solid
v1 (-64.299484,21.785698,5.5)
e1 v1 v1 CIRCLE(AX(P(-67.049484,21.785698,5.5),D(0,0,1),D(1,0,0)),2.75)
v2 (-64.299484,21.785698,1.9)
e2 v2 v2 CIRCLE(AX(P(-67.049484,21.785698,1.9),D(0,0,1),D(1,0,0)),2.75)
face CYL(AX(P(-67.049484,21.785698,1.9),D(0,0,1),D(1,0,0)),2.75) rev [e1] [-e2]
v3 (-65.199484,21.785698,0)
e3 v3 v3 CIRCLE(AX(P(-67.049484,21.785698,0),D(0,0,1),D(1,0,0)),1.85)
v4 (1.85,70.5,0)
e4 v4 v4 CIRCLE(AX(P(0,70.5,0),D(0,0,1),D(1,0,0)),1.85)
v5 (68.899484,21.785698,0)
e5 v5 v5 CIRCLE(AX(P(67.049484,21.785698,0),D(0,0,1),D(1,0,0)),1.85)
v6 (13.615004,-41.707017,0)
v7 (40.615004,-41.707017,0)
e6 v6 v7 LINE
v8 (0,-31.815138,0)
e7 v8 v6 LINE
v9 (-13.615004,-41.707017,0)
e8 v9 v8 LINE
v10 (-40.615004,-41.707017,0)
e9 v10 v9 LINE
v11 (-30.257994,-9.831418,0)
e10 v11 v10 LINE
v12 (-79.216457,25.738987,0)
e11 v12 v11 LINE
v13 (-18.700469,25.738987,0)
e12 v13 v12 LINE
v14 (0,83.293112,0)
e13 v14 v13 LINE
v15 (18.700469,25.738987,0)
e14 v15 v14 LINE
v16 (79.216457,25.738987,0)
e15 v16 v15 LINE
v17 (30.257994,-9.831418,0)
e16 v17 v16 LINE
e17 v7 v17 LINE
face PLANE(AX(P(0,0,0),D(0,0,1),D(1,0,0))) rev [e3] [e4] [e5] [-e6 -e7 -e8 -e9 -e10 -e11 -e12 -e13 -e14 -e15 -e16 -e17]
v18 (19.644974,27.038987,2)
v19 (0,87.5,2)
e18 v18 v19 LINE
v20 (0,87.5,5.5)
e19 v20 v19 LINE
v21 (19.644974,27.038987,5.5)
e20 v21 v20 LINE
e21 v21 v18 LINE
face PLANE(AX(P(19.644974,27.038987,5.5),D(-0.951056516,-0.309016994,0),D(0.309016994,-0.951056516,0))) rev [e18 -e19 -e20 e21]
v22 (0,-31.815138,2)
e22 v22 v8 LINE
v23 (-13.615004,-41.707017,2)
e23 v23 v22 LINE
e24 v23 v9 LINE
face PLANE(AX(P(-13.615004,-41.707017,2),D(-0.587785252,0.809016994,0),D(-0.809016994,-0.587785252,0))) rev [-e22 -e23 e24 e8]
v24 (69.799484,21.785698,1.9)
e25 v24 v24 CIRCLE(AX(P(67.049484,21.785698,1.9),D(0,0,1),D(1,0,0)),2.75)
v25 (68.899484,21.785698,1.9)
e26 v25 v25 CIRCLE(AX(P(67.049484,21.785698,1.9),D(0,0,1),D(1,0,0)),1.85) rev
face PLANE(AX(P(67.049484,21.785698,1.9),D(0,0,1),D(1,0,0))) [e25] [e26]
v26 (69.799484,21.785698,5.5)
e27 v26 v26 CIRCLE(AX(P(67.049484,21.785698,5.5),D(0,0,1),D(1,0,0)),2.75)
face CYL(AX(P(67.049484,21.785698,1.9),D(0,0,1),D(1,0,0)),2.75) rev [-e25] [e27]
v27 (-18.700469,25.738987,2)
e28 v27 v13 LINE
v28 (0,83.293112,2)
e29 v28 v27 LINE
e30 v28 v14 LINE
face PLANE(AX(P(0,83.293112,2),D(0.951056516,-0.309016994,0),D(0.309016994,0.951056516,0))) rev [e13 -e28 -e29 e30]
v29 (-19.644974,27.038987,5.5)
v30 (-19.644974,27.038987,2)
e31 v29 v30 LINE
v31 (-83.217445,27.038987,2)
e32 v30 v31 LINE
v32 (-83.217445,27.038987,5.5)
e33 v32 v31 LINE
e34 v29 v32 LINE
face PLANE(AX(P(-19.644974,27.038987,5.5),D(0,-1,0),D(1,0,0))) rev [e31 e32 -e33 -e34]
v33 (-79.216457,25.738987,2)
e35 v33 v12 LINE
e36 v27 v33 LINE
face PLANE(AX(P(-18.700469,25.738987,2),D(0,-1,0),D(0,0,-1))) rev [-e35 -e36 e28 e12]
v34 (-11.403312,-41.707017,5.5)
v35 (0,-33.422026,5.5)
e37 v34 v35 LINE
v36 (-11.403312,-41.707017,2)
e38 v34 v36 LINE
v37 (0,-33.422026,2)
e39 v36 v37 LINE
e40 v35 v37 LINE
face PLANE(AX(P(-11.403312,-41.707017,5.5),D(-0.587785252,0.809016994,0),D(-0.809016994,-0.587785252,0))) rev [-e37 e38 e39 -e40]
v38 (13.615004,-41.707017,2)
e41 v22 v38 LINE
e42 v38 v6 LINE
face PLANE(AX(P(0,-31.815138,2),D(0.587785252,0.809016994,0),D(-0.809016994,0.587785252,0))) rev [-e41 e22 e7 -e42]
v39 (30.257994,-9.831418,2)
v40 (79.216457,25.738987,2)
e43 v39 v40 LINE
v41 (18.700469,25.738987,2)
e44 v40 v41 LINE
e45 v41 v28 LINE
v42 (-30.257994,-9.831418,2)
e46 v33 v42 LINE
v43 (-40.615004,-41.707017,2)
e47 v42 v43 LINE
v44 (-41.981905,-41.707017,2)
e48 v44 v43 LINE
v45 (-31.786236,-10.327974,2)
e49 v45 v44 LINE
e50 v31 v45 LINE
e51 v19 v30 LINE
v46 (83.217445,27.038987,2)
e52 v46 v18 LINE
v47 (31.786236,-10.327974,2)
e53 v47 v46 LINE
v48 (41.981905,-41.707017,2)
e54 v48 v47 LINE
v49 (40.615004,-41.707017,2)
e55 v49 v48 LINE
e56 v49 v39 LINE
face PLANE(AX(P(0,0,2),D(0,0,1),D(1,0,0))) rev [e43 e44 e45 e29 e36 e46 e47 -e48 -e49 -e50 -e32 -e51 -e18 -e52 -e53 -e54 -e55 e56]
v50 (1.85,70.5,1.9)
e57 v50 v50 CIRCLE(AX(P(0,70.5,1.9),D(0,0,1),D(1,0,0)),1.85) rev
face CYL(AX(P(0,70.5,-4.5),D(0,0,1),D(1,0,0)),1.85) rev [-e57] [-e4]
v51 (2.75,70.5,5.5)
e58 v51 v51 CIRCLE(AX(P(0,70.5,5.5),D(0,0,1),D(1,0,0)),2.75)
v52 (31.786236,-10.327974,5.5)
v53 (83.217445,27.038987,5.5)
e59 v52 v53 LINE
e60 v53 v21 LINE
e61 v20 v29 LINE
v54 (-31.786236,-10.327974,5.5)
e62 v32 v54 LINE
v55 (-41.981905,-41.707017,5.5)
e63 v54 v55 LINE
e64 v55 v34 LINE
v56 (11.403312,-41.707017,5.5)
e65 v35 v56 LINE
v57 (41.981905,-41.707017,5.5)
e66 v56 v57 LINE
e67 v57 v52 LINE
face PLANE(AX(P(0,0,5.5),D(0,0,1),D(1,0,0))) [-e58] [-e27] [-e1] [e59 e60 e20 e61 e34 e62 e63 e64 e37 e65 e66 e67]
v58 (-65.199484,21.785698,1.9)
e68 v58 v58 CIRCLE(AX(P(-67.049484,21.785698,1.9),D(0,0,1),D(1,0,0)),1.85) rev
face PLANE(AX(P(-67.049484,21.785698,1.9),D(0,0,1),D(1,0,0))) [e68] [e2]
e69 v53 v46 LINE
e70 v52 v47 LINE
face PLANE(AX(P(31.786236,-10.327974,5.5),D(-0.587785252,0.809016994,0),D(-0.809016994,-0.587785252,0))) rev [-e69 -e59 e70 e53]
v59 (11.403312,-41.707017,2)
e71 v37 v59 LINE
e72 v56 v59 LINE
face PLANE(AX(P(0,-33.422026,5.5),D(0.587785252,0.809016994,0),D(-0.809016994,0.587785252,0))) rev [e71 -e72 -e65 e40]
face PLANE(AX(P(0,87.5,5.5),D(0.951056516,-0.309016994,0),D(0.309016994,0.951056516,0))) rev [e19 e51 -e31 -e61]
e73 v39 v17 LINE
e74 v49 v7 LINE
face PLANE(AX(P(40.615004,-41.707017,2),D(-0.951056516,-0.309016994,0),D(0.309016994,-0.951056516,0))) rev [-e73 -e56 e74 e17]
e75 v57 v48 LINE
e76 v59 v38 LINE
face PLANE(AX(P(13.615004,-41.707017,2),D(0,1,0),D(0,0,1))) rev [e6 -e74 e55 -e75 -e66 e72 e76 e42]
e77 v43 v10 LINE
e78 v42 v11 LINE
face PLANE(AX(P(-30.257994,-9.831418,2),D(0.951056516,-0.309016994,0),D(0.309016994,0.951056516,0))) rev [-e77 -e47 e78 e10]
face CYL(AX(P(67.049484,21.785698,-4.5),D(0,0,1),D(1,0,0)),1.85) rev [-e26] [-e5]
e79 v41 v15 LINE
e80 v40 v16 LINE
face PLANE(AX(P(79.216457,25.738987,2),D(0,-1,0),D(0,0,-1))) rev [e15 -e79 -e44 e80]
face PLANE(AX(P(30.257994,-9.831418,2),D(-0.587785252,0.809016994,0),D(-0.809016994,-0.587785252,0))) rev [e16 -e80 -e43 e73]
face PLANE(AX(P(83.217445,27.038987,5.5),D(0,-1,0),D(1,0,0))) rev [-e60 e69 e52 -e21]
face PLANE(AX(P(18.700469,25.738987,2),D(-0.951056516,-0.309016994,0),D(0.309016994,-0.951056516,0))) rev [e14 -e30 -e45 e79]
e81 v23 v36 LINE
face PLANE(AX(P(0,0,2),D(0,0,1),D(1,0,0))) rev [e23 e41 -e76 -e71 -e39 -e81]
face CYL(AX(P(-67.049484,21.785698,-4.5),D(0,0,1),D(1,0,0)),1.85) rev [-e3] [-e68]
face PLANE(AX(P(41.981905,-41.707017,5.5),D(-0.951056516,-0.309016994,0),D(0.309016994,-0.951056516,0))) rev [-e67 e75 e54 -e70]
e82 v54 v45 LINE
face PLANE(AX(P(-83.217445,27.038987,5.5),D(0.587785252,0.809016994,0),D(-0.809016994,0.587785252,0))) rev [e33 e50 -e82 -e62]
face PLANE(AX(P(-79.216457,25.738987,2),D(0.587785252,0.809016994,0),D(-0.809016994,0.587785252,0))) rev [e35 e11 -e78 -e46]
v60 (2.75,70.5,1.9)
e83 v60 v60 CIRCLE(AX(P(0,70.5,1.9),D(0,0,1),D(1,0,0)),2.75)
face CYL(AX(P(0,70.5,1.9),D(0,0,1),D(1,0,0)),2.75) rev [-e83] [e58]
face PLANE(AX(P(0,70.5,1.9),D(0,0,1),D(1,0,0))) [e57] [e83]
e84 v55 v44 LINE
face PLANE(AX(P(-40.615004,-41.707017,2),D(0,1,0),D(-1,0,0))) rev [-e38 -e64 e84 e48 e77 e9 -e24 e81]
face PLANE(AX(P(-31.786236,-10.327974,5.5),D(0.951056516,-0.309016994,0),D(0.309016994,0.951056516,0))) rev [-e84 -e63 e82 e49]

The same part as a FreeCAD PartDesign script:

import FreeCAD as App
import Part
import Sketcher

V = App.Vector
Q = App.Units.Quantity

doc = App.newDocument("Part")
params = doc.addObject("Spreadsheet::Sheet", "Params")
for row, (alias, value) in enumerate([
    ("sketch1_width", "27 mm"),
    ("pad1_length", "2 mm"),
    ("pad2_length", "3.5 mm"),
    ("sketch3_diameter", "3.7 mm"),
    ("pocket1_length", "10 mm"),
    ("sketch4_diameter", "5.5 mm"),
    ("pocket2_length", "3.6 mm"),
], start=1):
    params.set(f"A{row}", alias)
    params.set(f"B{row}", "=" + value)
    params.setAlias(f"B{row}", alias)

body = doc.addObject("PartDesign::Body", "Body")

# Sketch on XY plane
sketch1 = body.newObject("Sketcher::SketchObject", "Sketch")
sketch1.AttachmentSupport = (doc.getObject("XY_Plane"), [""])
sketch1.MapMode = "FlatFace"
sketch1.addGeometry([
    Part.LineSegment(V(79, 26, 0), V(19, 26, 0)),  # 0
    Part.LineSegment(V(19, 26, 0), V(0, 83, 0)),  # 1
    Part.LineSegment(V(0, 83, 0), V(-19, 26, 0)),  # 2
    Part.LineSegment(V(-19, 26, 0), V(-79, 26, 0)),  # 3
    Part.LineSegment(V(-79, 26, 0), V(-30, -10, 0)),  # 4
    Part.LineSegment(V(-30, -10, 0), V(-41, -42, 0)),  # 5
    Part.LineSegment(V(-41, -42, 0), V(-14, -42, 0)),  # 6
    Part.LineSegment(V(-14, -42, 0), V(0, -32, 0)),  # 7
    Part.LineSegment(V(0, -32, 0), V(14, -42, 0)),  # 8
    Part.LineSegment(V(14, -42, 0), V(41, -42, 0)),  # 9
    Part.LineSegment(V(41, -42, 0), V(30, -10, 0)),  # 10
    Part.LineSegment(V(30, -10, 0), V(79, 26, 0)),  # 11
], False)
sketch1.addConstraint([
    Sketcher.Constraint("Coincident", 0, 2, 1, 1),
    Sketcher.Constraint("Coincident", 1, 2, 2, 1),
    Sketcher.Constraint("Coincident", 2, 2, 3, 1),
    Sketcher.Constraint("Coincident", 3, 2, 4, 1),
    Sketcher.Constraint("Coincident", 4, 2, 5, 1),
    Sketcher.Constraint("Coincident", 5, 2, 6, 1),
    Sketcher.Constraint("Coincident", 6, 2, 7, 1),
    Sketcher.Constraint("Coincident", 7, 2, 8, 1),
    Sketcher.Constraint("Coincident", 8, 2, 9, 1),
    Sketcher.Constraint("Coincident", 9, 2, 10, 1),
    Sketcher.Constraint("Coincident", 10, 2, 11, 1),
    Sketcher.Constraint("Coincident", 11, 2, 0, 1),
    Sketcher.Constraint("Horizontal", 0),
    Sketcher.Constraint("Horizontal", 3),
    Sketcher.Constraint("Horizontal", 6),
    Sketcher.Constraint("Horizontal", 9),
    Sketcher.Constraint("Symmetric", 0, 2, 2, 2, -2),
    Sketcher.Constraint("Symmetric", 6, 2, 8, 2, -2),
    Sketcher.Constraint("Symmetric", 4, 2, 10, 2, -2),
    Sketcher.Constraint("PointOnObject", 1, 2, -2),
    Sketcher.Constraint("PointOnObject", 7, 2, -2),
    Sketcher.Constraint("Parallel", 2, 5),
    Sketcher.Constraint("Parallel", 4, 8),
    Sketcher.Constraint("Parallel", 1, 10),
    Sketcher.Constraint("Parallel", 7, 11),
    Sketcher.Constraint("Equal", 2, 4),
    Sketcher.Constraint("DistanceX", 6, 1, 6, 2, Q("27 mm")),
    Sketcher.Constraint("Angle", 1, Q("108 deg")),
    Sketcher.Constraint("Angle", 4, Q("-36 deg")),
    Sketcher.Constraint("DistanceY", 5, 2, 4, 2, Q("31.875599 mm")),
    Sketcher.Constraint("Distance", 7, Q("16.82907 mm")),
    Sketcher.Constraint("DistanceX", 0, 2, 0, 1, Q("60.515988 mm")),
    Sketcher.Constraint("DistanceY", -1, 1, 1, 2, Q("83.293112 mm")),
])
sketch1.setExpression("Constraints[26]", "Params.sketch1_width")
pad1 = body.newObject("PartDesign::Pad", "Pad")
pad1.Profile = sketch1
pad1.setExpression("Length", "Params.pad1_length")

# Sketch on XY plane
sketch2 = body.newObject("Sketcher::SketchObject", "Sketch001")
sketch2.AttachmentSupport = (doc.getObject("XY_Plane"), [""])
sketch2.MapMode = "FlatFace"
sketch2.AttachmentOffset = App.Placement(V(0, 0, 2), App.Rotation())
sketch2.addGeometry([
    Part.LineSegment(V(-42, -42, 0), V(-11, -42, 0)),  # 0
    Part.LineSegment(V(-11, -42, 0), V(0, -33, 0)),  # 1
    Part.LineSegment(V(0, -33, 0), V(11, -42, 0)),  # 2
    Part.LineSegment(V(11, -42, 0), V(42, -42, 0)),  # 3
    Part.LineSegment(V(42, -42, 0), V(32, -10, 0)),  # 4
    Part.LineSegment(V(32, -10, 0), V(83, 27, 0)),  # 5
    Part.LineSegment(V(83, 27, 0), V(20, 27, 0)),  # 6
    Part.LineSegment(V(20, 27, 0), V(0, 88, 0)),  # 7
    Part.LineSegment(V(0, 88, 0), V(-20, 27, 0)),  # 8
    Part.LineSegment(V(-20, 27, 0), V(-83, 27, 0)),  # 9
    Part.LineSegment(V(-83, 27, 0), V(-32, -10, 0)),  # 10
    Part.LineSegment(V(-32, -10, 0), V(-42, -42, 0)),  # 11
], False)
sketch2.addConstraint([
    Sketcher.Constraint("Coincident", 0, 2, 1, 1),
    Sketcher.Constraint("Coincident", 1, 2, 2, 1),
    Sketcher.Constraint("Coincident", 2, 2, 3, 1),
    Sketcher.Constraint("Coincident", 3, 2, 4, 1),
    Sketcher.Constraint("Coincident", 4, 2, 5, 1),
    Sketcher.Constraint("Coincident", 5, 2, 6, 1),
    Sketcher.Constraint("Coincident", 6, 2, 7, 1),
    Sketcher.Constraint("Coincident", 7, 2, 8, 1),
    Sketcher.Constraint("Coincident", 8, 2, 9, 1),
    Sketcher.Constraint("Coincident", 9, 2, 10, 1),
    Sketcher.Constraint("Coincident", 10, 2, 11, 1),
    Sketcher.Constraint("Coincident", 11, 2, 0, 1),
    Sketcher.Constraint("Horizontal", 0),
    Sketcher.Constraint("Horizontal", 3),
    Sketcher.Constraint("Horizontal", 6),
    Sketcher.Constraint("Horizontal", 9),
    Sketcher.Constraint("Symmetric", 0, 2, 2, 2, -2),
    Sketcher.Constraint("Symmetric", 6, 2, 8, 2, -2),
    Sketcher.Constraint("Symmetric", 4, 2, 10, 2, -2),
    Sketcher.Constraint("PointOnObject", 1, 2, -2),
    Sketcher.Constraint("PointOnObject", 7, 2, -2),
    Sketcher.Constraint("Parallel", 1, 5),
    Sketcher.Constraint("Parallel", 4, 7),
    Sketcher.Constraint("Parallel", 2, 10),
    Sketcher.Constraint("Parallel", 8, 11),
    Sketcher.Constraint("Equal", 5, 7),
    Sketcher.Constraint("Angle", 1, Q("36 deg")),
    Sketcher.Constraint("Angle", 4, Q("108 deg")),
    Sketcher.Constraint("DistanceY", -1, 1, 7, 2, Q("87.5 mm")),
    Sketcher.Constraint("DistanceX", 6, 2, 6, 1, Q("63.572471 mm")),
    Sketcher.Constraint("Distance", 1, Q("14.095268 mm")),
    Sketcher.Constraint("Distance", 4, Q("32.993878 mm")),
    Sketcher.Constraint("Distance", 5, Q("63.572471 mm")),
])
pad2 = body.newObject("PartDesign::Pad", "Pad001")
pad2.Profile = sketch2
pad2.setExpression("Length", "Params.pad2_length")

# Sketch on XY plane
sketch3 = body.newObject("Sketcher::SketchObject", "Sketch002")
sketch3.AttachmentSupport = (doc.getObject("XY_Plane"), [""])
sketch3.MapMode = "FlatFace"
sketch3.AttachmentOffset = App.Placement(V(0, 0, 5.5), App.Rotation())
sketch3.addGeometry([
    Part.Circle(V(0, 70.5, 0), V(0, 0, 1), 1.9),
    Part.Circle(V(67, 21.8, 0), V(0, 0, 1), 1.9),
    Part.Circle(V(-67, 21.8, 0), V(0, 0, 1), 1.9),
], False)
sketch3.addConstraint([
    Sketcher.Constraint("Equal", 0, 1),
    Sketcher.Constraint("Equal", 1, 2),
    Sketcher.Constraint("Symmetric", 1, 3, 2, 3, -2),
    Sketcher.Constraint("PointOnObject", 0, 3, -2),
    Sketcher.Constraint("Diameter", 0, Q("3.7 mm")),
    Sketcher.Constraint("DistanceY", -1, 1, 0, 3, Q("70.5 mm")),
    Sketcher.Constraint("DistanceY", -1, 1, 1, 3, Q("21.785698 mm")),
    Sketcher.Constraint("DistanceX", 2, 3, 1, 3, Q("134.098969 mm")),
])
sketch3.setExpression("Constraints[4]", "Params.sketch3_diameter")
pocket1 = body.newObject("PartDesign::Pocket", "Pocket")
pocket1.Profile = sketch3
pocket1.setExpression("Length", "Params.pocket1_length")

# Sketch on XY plane
sketch4 = body.newObject("Sketcher::SketchObject", "Sketch003")
sketch4.AttachmentSupport = (doc.getObject("XY_Plane"), [""])
sketch4.MapMode = "FlatFace"
sketch4.AttachmentOffset = App.Placement(V(0, 0, 5.5), App.Rotation())
sketch4.addGeometry([
    Part.Circle(V(67, 21.8, 0), V(0, 0, 1), 2.8),
    Part.Circle(V(0, 70.5, 0), V(0, 0, 1), 2.8),
    Part.Circle(V(-67, 21.8, 0), V(0, 0, 1), 2.8),
], False)
sketch4.addConstraint([
    Sketcher.Constraint("Equal", 0, 1),
    Sketcher.Constraint("Equal", 1, 2),
    Sketcher.Constraint("Symmetric", 0, 3, 2, 3, -2),
    Sketcher.Constraint("PointOnObject", 1, 3, -2),
    Sketcher.Constraint("Diameter", 0, Q("5.5 mm")),
    Sketcher.Constraint("DistanceY", -1, 1, 1, 3, Q("70.5 mm")),
    Sketcher.Constraint("DistanceY", -1, 1, 0, 3, Q("21.785698 mm")),
    Sketcher.Constraint("DistanceX", 2, 3, 0, 3, Q("134.098969 mm")),
])
sketch4.setExpression("Constraints[4]", "Params.sketch4_diameter")
pocket2 = body.newObject("PartDesign::Pocket", "Pocket001")
pocket2.Profile = sketch4
pocket2.setExpression("Length", "Params.pocket2_length")

doc.recompute()
